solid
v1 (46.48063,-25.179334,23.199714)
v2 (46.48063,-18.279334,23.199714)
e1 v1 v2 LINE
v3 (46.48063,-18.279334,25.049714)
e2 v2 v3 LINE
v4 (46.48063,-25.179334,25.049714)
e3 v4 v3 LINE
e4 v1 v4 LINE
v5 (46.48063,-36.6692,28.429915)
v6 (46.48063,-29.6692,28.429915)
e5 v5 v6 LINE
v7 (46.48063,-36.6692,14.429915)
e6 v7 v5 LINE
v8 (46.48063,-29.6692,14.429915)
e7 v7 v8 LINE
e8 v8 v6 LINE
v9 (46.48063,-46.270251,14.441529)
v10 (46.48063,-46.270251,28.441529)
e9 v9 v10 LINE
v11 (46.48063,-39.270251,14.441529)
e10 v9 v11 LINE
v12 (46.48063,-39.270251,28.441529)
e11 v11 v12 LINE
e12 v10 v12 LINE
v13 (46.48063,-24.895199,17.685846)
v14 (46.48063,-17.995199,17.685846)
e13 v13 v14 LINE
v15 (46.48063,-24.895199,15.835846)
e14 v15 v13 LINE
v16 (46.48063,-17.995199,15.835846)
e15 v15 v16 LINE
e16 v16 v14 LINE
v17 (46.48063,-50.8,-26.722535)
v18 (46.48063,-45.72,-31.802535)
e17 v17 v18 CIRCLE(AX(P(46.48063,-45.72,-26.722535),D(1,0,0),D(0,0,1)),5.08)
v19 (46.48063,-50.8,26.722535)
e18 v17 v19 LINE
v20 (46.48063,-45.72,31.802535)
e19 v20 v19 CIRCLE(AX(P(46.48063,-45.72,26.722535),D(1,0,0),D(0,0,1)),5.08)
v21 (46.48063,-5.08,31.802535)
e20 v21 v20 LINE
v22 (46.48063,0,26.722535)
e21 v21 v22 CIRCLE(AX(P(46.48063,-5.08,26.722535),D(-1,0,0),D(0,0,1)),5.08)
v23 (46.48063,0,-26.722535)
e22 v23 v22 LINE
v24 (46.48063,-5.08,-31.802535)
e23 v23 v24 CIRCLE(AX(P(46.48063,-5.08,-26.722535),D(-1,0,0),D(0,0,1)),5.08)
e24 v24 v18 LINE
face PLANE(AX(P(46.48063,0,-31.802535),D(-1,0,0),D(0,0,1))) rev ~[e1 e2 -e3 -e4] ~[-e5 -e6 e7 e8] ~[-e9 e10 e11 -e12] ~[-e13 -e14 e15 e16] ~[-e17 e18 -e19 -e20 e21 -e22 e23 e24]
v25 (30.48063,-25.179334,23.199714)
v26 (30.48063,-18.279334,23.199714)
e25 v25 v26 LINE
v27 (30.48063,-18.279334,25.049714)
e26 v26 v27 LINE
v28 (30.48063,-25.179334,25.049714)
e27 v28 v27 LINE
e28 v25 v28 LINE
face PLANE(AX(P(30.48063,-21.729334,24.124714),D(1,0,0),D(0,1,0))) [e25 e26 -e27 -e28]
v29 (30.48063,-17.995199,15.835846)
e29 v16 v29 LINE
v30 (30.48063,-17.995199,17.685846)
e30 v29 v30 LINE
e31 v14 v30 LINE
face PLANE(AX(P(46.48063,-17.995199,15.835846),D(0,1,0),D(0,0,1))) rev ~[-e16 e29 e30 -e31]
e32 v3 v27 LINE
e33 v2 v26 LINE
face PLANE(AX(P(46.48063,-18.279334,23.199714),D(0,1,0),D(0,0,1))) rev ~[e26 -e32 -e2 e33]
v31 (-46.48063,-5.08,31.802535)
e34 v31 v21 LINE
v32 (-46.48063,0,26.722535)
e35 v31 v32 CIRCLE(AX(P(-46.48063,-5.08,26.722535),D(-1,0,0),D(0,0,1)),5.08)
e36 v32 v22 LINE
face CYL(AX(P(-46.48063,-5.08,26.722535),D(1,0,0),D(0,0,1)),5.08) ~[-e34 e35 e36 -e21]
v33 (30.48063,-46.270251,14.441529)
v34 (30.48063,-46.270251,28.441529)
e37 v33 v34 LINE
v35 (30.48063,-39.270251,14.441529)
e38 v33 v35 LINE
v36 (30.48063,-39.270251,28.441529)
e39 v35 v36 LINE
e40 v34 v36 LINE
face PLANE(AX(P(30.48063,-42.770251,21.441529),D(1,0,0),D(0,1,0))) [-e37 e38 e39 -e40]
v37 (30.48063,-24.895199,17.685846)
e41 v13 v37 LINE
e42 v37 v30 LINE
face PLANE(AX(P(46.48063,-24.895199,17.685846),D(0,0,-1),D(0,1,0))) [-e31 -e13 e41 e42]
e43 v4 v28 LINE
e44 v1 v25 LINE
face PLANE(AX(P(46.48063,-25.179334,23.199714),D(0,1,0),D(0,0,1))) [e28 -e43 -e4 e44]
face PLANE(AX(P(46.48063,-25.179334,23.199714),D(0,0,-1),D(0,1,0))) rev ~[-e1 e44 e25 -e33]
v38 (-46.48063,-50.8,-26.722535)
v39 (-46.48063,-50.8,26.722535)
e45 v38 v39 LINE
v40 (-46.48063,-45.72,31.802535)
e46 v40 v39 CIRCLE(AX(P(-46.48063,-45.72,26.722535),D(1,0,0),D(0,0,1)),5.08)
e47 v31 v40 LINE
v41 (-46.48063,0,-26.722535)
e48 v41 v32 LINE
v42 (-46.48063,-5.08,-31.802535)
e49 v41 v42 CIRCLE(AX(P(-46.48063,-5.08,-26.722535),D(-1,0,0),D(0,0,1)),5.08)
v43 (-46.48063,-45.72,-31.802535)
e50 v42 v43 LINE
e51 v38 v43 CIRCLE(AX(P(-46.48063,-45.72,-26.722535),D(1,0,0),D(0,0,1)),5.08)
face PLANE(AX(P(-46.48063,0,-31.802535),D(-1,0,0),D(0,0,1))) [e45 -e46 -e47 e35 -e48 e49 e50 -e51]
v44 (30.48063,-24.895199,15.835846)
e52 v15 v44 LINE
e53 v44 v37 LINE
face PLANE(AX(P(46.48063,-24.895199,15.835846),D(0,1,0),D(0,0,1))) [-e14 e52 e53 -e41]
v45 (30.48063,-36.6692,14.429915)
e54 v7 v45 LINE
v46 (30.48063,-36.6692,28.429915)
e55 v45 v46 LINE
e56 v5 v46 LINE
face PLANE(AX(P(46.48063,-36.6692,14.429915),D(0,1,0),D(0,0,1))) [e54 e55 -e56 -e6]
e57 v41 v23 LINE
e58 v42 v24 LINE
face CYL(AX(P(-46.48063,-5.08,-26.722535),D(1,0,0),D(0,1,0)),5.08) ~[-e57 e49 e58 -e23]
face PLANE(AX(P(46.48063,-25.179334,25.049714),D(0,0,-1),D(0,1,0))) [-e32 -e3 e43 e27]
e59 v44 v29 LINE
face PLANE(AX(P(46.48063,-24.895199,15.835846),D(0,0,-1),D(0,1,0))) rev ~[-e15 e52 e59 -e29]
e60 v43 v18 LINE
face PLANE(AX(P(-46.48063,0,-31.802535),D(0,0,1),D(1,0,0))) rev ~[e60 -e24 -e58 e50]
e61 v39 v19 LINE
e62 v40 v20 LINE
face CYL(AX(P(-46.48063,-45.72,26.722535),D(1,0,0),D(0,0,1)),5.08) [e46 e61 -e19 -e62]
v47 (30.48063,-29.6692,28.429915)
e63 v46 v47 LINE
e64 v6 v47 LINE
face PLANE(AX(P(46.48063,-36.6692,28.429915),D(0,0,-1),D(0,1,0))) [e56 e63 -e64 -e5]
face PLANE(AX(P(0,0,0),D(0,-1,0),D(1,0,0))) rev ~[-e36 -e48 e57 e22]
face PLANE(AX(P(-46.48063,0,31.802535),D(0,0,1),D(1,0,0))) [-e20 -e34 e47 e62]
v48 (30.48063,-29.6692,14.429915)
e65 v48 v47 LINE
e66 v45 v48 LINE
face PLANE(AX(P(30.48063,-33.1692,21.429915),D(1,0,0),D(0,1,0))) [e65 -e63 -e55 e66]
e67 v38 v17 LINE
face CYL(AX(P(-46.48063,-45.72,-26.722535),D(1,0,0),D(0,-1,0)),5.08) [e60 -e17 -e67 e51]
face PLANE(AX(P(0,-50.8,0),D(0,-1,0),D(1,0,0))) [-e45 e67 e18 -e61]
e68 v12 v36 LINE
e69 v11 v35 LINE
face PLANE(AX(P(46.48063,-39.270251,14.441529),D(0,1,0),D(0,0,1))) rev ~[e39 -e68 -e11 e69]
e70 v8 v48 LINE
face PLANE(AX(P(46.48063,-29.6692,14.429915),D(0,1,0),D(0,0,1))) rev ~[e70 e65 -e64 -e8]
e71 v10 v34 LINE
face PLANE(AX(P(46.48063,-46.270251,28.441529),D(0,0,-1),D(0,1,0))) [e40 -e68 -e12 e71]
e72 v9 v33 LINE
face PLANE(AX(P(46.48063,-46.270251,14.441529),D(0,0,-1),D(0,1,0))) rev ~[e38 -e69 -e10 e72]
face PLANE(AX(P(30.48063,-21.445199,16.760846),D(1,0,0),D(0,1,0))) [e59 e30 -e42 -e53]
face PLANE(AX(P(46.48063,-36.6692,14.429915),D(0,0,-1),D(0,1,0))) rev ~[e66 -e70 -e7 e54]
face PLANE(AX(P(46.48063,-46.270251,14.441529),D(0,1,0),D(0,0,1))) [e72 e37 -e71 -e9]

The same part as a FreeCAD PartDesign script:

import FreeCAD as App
import Part
import Sketcher

V = App.Vector
Q = App.Units.Quantity


def edges_at(feature, points):
    """Names of the edges that pass closest to the given points."""
    edges = feature.Shape.Edges
    near = lambda p: min(range(len(edges)), key=lambda i: edges[i].distToShape(Part.Vertex(*p))[0])
    return sorted({f"Edge{near(p) + 1}" for p in points})

doc = App.newDocument("Part")
body = doc.addObject("PartDesign::Body", "Body")

sketch1 = body.newObject("Sketcher::SketchObject", "Sketch")
sketch1.AttachmentSupport = (doc.getObject("XZ_Plane"), [""])
sketch1.MapMode = "FlatFace"
sketch1.addGeometry([
    Part.LineSegment(V(-46, 32, 0), V(-46, -32, 0)),
    Part.LineSegment(V(-46, -32, 0), V(46, -32, 0)),
    Part.LineSegment(V(46, -32, 0), V(46, 32, 0)),
    Part.LineSegment(V(46, 32, 0), V(-46, 32, 0)),
], False)
sketch1.addConstraint([
    Sketcher.Constraint("Coincident", 0, 2, 1, 1),
    Sketcher.Constraint("Coincident", 1, 2, 2, 1),
    Sketcher.Constraint("Coincident", 2, 2, 3, 1),
    Sketcher.Constraint("Coincident", 3, 2, 0, 1),
    Sketcher.Constraint("Vertical", 0),
    Sketcher.Constraint("Horizontal", 1),
    Sketcher.Constraint("Vertical", 2),
    Sketcher.Constraint("Horizontal", 3),
    Sketcher.Constraint("Symmetric", 0, 2, 2, 2, -1, 1),
    Sketcher.Constraint("DistanceX", 1, 1, 1, 2, Q("92.96126 mm")),
    Sketcher.Constraint("DistanceY", 0, 2, 0, 1, Q("63.60507 mm")),
])
pad1 = body.newObject("PartDesign::Pad", "Pad")
pad1.Profile = sketch1
pad1.Length = 50.8
doc.recompute()

fillet = body.newObject("PartDesign::Fillet", "Fillet")
fillet.Base = (pad1, edges_at(pad1, [(0, -50.8, 31.803)]))
fillet.Radius = 5.08
doc.recompute()

fillet2 = body.newObject("PartDesign::Fillet", "Fillet001")
fillet2.Base = (fillet, edges_at(fillet, [(0, 0, 31.803)]))
fillet2.Radius = 5.08
doc.recompute()

fillet3 = body.newObject("PartDesign::Fillet", "Fillet002")
fillet3.Base = (fillet2, edges_at(fillet2, [(0, -50.8, -31.803), (0, 0, -31.803)]))
fillet3.Radius = 5.08

sketch2 = body.newObject("Sketcher::SketchObject", "Sketch001")
sketch2.AttachmentSupport = (doc.getObject("YZ_Plane"), [""])
sketch2.MapMode = "FlatFace"
sketch2.AttachmentOffset = App.Placement(V(0, 0, 46.48063), App.Rotation())
sketch2.addGeometry([
    Part.LineSegment(V(-46, 28, 0), V(-46, 14, 0)),
    Part.LineSegment(V(-46, 14, 0), V(-39, 14, 0)),
    Part.LineSegment(V(-39, 14, 0), V(-39, 28, 0)),
    Part.LineSegment(V(-39, 28, 0), V(-46, 28, 0)),
], False)
sketch2.addConstraint([
    Sketcher.Constraint("Coincident", 0, 2, 1, 1),
    Sketcher.Constraint("Coincident", 1, 2, 2, 1),
    Sketcher.Constraint("Coincident", 2, 2, 3, 1),
    Sketcher.Constraint("Coincident", 3, 2, 0, 1),
    Sketcher.Constraint("Vertical", 0),
    Sketcher.Constraint("Horizontal", 1),
    Sketcher.Constraint("Vertical", 2),
    Sketcher.Constraint("Horizontal", 3),
    Sketcher.Constraint("DistanceX", 1, 1, 1, 2, Q("7 mm")),
    Sketcher.Constraint("DistanceY", 0, 2, 0, 1, Q("14 mm")),
    Sketcher.Constraint("DistanceX", 0, 2, -1, 1, Q("46.270251 mm")),
    Sketcher.Constraint("DistanceY", -1, 1, 0, 2, Q("14.441529 mm")),
])
pocket1 = body.newObject("PartDesign::Pocket", "Pocket")
pocket1.Profile = sketch2
pocket1.Length = 16

sketch3 = body.newObject("Sketcher::SketchObject", "Sketch002")
sketch3.AttachmentSupport = (doc.getObject("YZ_Plane"), [""])
sketch3.MapMode = "FlatFace"
sketch3.AttachmentOffset = App.Placement(V(0, 0, 46.48063), App.Rotation())
sketch3.addGeometry([
    Part.LineSegment(V(-37, 28, 0), V(-37, 14, 0)),
    Part.LineSegment(V(-37, 14, 0), V(-30, 14, 0)),
    Part.LineSegment(V(-30, 14, 0), V(-30, 28, 0)),
    Part.LineSegment(V(-30, 28, 0), V(-37, 28, 0)),
], False)
sketch3.addConstraint([
    Sketcher.Constraint("Coincident", 0, 2, 1, 1),
    Sketcher.Constraint("Coincident", 1, 2, 2, 1),
    Sketcher.Constraint("Coincident", 2, 2, 3, 1),
    Sketcher.Constraint("Coincident", 3, 2, 0, 1),
    Sketcher.Constraint("Vertical", 0),
    Sketcher.Constraint("Horizontal", 1),
    Sketcher.Constraint("Vertical", 2),
    Sketcher.Constraint("Horizontal", 3),
    Sketcher.Constraint("DistanceX", 1, 1, 1, 2, Q("7 mm")),
    Sketcher.Constraint("DistanceY", 0, 2, 0, 1, Q("14 mm")),
    Sketcher.Constraint("DistanceX", 0, 2, -1, 1, Q("36.6692 mm")),
    Sketcher.Constraint("DistanceY", -1, 1, 0, 2, Q("14.429915 mm")),
])
pocket2 = body.newObject("PartDesign::Pocket", "Pocket001")
pocket2.Profile = sketch3
pocket2.Length = 16

sketch4 = body.newObject("Sketcher::SketchObject", "Sketch003")
sketch4.AttachmentSupport = (doc.getObject("YZ_Plane"), [""])
sketch4.MapMode = "FlatFace"
sketch4.AttachmentOffset = App.Placement(V(0, 0, 46.48063), App.Rotation())
sketch4.addGeometry([
    Part.LineSegment(V(-25.2, 25, 0), V(-25.2, 23.2, 0)),
    Part.LineSegment(V(-25.2, 23.2, 0), V(-18.3, 23.2, 0)),
    Part.LineSegment(V(-18.3, 23.2, 0), V(-18.3, 25, 0)),
    Part.LineSegment(V(-18.3, 25, 0), V(-25.2, 25, 0)),
    Part.LineSegment(V(-24.9, 17.7, 0), V(-24.9, 15.8, 0)),
    Part.LineSegment(V(-24.9, 15.8, 0), V(-18, 15.8, 0)),
    Part.LineSegment(V(-18, 15.8, 0), V(-18, 17.7, 0)),
    Part.LineSegment(V(-18, 17.7, 0), V(-24.9, 17.7, 0)),
], False)
sketch4.addConstraint([
    Sketcher.Constraint("Coincident", 0, 2, 1, 1),
    Sketcher.Constraint("Coincident", 1, 2, 2, 1),
    Sketcher.Constraint("Coincident", 2, 2, 3, 1),
    Sketcher.Constraint("Coincident", 3, 2, 0, 1),
    Sketcher.Constraint("Coincident", 4, 2, 5, 1),
    Sketcher.Constraint("Coincident", 5, 2, 6, 1),
    Sketcher.Constraint("Coincident", 6, 2, 7, 1),
    Sketcher.Constraint("Coincident", 7, 2, 4, 1),
    Sketcher.Constraint("Vertical", 0),
    Sketcher.Constraint("Horizontal", 1),
    Sketcher.Constraint("Vertical", 2),
    Sketcher.Constraint("Horizontal", 3),
    Sketcher.Constraint("Vertical", 4),
    Sketcher.Constraint("Horizontal", 5),
    Sketcher.Constraint("Vertical", 6),
    Sketcher.Constraint("Horizontal", 7),
    Sketcher.Constraint("Equal", 3, 5),
    Sketcher.Constraint("Equal", 2, 4),
    Sketcher.Constraint("DistanceX", 1, 1, 1, 2, Q("6.9 mm")),
    Sketcher.Constraint("DistanceY", 0, 2, 0, 1, Q("1.85 mm")),
    Sketcher.Constraint("DistanceX", 4, 2, -1, 1, Q("24.895199 mm")),
    Sketcher.Constraint("DistanceY", 4, 2, 3, 2, Q("9.213868 mm")),
    Sketcher.Constraint("DistanceX", 0, 2, -1, 1, Q("25.179334 mm")),
    Sketcher.Constraint("DistanceY", -1, 1, 0, 2, Q("23.199714 mm")),
])
pocket3 = body.newObject("PartDesign::Pocket", "Pocket002")
pocket3.Profile = sketch4
pocket3.Length = 16

doc.recompute()
